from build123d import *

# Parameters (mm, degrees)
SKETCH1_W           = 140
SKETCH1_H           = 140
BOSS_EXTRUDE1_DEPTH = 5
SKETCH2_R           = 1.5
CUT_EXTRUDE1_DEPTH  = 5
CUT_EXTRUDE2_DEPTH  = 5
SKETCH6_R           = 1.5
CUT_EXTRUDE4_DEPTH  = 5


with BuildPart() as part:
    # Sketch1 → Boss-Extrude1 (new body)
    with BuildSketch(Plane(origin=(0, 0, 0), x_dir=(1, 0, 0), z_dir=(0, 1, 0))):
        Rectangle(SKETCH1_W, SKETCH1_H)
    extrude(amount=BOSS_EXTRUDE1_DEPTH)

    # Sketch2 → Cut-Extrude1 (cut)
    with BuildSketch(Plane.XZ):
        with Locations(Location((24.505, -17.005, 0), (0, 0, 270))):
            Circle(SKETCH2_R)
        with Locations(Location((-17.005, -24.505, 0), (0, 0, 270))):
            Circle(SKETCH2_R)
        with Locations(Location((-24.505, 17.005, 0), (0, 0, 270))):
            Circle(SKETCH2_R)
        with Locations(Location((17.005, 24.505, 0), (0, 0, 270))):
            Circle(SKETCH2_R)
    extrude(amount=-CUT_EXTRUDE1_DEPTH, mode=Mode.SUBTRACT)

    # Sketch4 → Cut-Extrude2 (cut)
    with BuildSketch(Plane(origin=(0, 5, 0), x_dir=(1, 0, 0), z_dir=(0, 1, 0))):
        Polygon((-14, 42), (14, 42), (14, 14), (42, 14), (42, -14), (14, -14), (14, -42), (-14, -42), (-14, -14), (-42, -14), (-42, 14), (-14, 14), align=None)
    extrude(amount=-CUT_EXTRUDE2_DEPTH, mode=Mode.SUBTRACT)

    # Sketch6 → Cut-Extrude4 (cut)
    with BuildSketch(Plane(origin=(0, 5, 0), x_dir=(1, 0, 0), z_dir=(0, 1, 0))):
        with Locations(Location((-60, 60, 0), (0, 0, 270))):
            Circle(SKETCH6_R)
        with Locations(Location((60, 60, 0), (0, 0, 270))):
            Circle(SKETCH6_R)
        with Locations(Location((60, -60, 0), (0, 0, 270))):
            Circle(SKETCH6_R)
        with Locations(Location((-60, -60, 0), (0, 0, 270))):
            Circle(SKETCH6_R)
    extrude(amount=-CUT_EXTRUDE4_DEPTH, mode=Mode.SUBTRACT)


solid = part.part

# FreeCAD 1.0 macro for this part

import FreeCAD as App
import Part
import Sketcher
Q = App.Units.Quantity


def add_polygon(sketch, points):
    """Adds a closed chain of lines whose ends are joined by coincident constraints."""
    first, n = sketch.GeometryCount, len(points)
    for a, b in zip(points, points[1:] + points[:1]):
        sketch.addGeometry(Part.LineSegment(App.Vector(*a, 0), App.Vector(*b, 0)), False)
    for i in range(n):
        sketch.addConstraint(Sketcher.Constraint("Coincident", first + i, 2, first + (i + 1) % n, 1))

doc = App.newDocument("Part")
body = doc.addObject("PartDesign::Body", "Body")

# Sketch on XZ plane
sketch1 = body.newObject("Sketcher::SketchObject", "Sketch")
sketch1.AttachmentSupport = (doc.getObject("XZ_Plane"), [""])
sketch1.MapMode = "FlatFace"
add_polygon(sketch1, [(-70, -70), (-70, 70), (70, 70), (70, -70)])  # lines 0-3
sketch1.addConstraint([
    Sketcher.Constraint("Vertical", 0),
    Sketcher.Constraint("Horizontal", 1),
    Sketcher.Constraint("Vertical", 2),
    Sketcher.Constraint("Horizontal", 3),
    Sketcher.Constraint("Symmetric", 0, 2, 2, 2, -1, 1),
    Sketcher.Constraint("Equal", 3, 0),
    Sketcher.Constraint("DistanceX", 1, 1, 1, 2, Q("140 mm")),
])
pad1 = body.newObject("PartDesign::Pad", "Pad")
pad1.Profile = sketch1
pad1.Length = 5
pad1.Reversed = True

# Sketch on XZ plane
sketch2 = body.newObject("Sketcher::SketchObject", "Sketch001")
sketch2.AttachmentSupport = (doc.getObject("XZ_Plane"), [""])
sketch2.MapMode = "FlatFace"
sketch2.addGeometry([
    Part.Circle(App.Vector(24.505, -17.005, 0), App.Vector(0, 0, 1), 1.5),
    Part.Circle(App.Vector(-17.005, -24.505, 0), App.Vector(0, 0, 1), 1.5),
    Part.Circle(App.Vector(-24.505, 17.005, 0), App.Vector(0, 0, 1), 1.5),
    Part.Circle(App.Vector(17.005, 24.505, 0), App.Vector(0, 0, 1), 1.5),
], False)
sketch2.addConstraint([
    Sketcher.Constraint("Equal", 0, 1),
    Sketcher.Constraint("Equal", 1, 2),
    Sketcher.Constraint("Equal", 2, 3),
    Sketcher.Constraint("Symmetric", 0, 3, 2, 3, -1, 1),
    Sketcher.Constraint("Symmetric", 1, 3, 3, 3, -1, 1),
    Sketcher.Constraint("Diameter", 0, Q("3 mm")),
    Sketcher.Constraint("DistanceY", 1, 3, 0, 3, Q("7.5 mm")),
    Sketcher.Constraint("DistanceX", 2, 3, 1, 3, Q("7.5 mm")),
    Sketcher.Constraint("DistanceX", 1, 3, 0, 3, Q("41.51 mm")),
    Sketcher.Constraint("DistanceY", 1, 3, 2, 3, Q("41.51 mm")),
])
pocket1 = body.newObject("PartDesign::Pocket", "Pocket")
pocket1.Profile = sketch2
pocket1.Length = 5

# Sketch on XZ plane
sketch3 = body.newObject("Sketcher::SketchObject", "Sketch002")
sketch3.AttachmentSupport = (doc.getObject("XZ_Plane"), [""])
sketch3.MapMode = "FlatFace"
sketch3.AttachmentOffset = App.Placement(App.Vector(0, 0, -5), App.Rotation())
add_polygon(sketch3, [(14, -42), (-14, -42), (-14, -14), (-42, -14), (-42, 14), (-14, 14), (-14, 42), (14, 42), (14, 14), (42, 14), (42, -14), (14, -14)])  # lines 0-11
sketch3.addConstraint([
    Sketcher.Constraint("Horizontal", 0),
    Sketcher.Constraint("Vertical", 1),
    Sketcher.Constraint("Horizontal", 2),
    Sketcher.Constraint("Vertical", 3),
    Sketcher.Constraint("Horizontal", 4),
    Sketcher.Constraint("Vertical", 5),
    Sketcher.Constraint("Horizontal", 6),
    Sketcher.Constraint("Vertical", 7),
    Sketcher.Constraint("Horizontal", 8),
    Sketcher.Constraint("Vertical", 9),
    Sketcher.Constraint("Horizontal", 10),
    Sketcher.Constraint("Vertical", 11),
    Sketcher.Constraint("Symmetric", 0, 2, 6, 2, -1, 1),
    Sketcher.Constraint("Symmetric", 2, 2, 8, 2, -1, 1),
    Sketcher.Constraint("Symmetric", 4, 2, 10, 2, -1, 1),
    Sketcher.Constraint("Symmetric", 4, 2, 7, 2, -2),
    Sketcher.Constraint("Equal", 0, 2),
    Sketcher.Constraint("Equal", 10, 1),
    Sketcher.Constraint("Equal", 1, 3),
    Sketcher.Constraint("DistanceX", 0, 2, 0, 1, Q("28 mm")),
])
pocket2 = body.newObject("PartDesign::Pocket", "Pocket001")
pocket2.Profile = sketch3
pocket2.Length = 5
pocket2.Reversed = True

# Sketch on XZ plane
sketch4 = body.newObject("Sketcher::SketchObject", "Sketch003")
sketch4.AttachmentSupport = (doc.getObject("XZ_Plane"), [""])
sketch4.MapMode = "FlatFace"
sketch4.AttachmentOffset = App.Placement(App.Vector(0, 0, -5), App.Rotation())
sketch4.addGeometry([
    Part.Circle(App.Vector(-60, -60, 0), App.Vector(0, 0, 1), 1.5),
    Part.Circle(App.Vector(60, -60, 0), App.Vector(0, 0, 1), 1.5),
    Part.Circle(App.Vector(60, 60, 0), App.Vector(0, 0, 1), 1.5),
    Part.Circle(App.Vector(-60, 60, 0), App.Vector(0, 0, 1), 1.5),
], False)
sketch4.addConstraint([
    Sketcher.Constraint("Equal", 0, 1),
    Sketcher.Constraint("Equal", 1, 2),
    Sketcher.Constraint("Equal", 2, 3),
    Sketcher.Constraint("Symmetric", 0, 3, 2, 3, -1, 1),
    Sketcher.Constraint("Symmetric", 1, 3, 3, 3, -1, 1),
    Sketcher.Constraint("Symmetric", 0, 3, 1, 3, -2),
    Sketcher.Constraint("Diameter", 0, Q("3 mm")),
    Sketcher.Constraint("DistanceX", 0, 3, -1, 1, Q("60 mm")),
    Sketcher.Constraint("DistanceY", 0, 3, -1, 1, Q("60 mm")),
])
pocket3 = body.newObject("PartDesign::Pocket", "Pocket002")
pocket3.Profile = sketch4
pocket3.Length = 5
pocket3.Reversed = True

doc.recompute()
